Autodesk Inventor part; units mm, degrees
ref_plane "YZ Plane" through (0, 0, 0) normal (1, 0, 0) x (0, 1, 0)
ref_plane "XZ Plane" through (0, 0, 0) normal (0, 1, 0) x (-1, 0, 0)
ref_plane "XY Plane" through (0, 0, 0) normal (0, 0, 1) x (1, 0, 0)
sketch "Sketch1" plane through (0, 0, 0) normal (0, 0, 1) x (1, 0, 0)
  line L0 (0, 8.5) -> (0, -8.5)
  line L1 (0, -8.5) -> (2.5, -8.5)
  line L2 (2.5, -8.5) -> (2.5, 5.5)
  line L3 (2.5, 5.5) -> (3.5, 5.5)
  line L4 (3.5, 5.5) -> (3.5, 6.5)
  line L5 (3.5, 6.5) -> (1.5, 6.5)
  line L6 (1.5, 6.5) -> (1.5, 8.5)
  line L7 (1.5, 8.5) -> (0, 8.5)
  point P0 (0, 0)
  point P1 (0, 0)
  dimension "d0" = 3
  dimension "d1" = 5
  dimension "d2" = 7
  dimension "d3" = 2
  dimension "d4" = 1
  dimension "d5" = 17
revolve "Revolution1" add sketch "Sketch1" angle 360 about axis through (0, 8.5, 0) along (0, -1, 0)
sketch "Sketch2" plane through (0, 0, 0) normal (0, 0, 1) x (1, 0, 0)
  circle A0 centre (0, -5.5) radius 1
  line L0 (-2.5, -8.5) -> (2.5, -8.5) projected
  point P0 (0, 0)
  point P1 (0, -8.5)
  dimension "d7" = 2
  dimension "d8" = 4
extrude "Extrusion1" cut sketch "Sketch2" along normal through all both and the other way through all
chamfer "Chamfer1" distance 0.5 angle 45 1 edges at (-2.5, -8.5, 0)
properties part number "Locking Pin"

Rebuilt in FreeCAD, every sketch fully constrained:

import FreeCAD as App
import Part
import Sketcher


def edges_at(feature, points):
    """Names of the edges that pass closest to the given points."""
    edges = feature.Shape.Edges
    near = lambda p: min(range(len(edges)), key=lambda i: edges[i].distToShape(Part.Vertex(*p))[0])
    return sorted({f"Edge{near(p) + 1}" for p in points})


def add_polygon(sketch, points):
    """Adds a closed chain of lines whose ends are joined by coincident constraints."""
    first, n = sketch.GeometryCount, len(points)
    for a, b in zip(points, points[1:] + points[:1]):
        sketch.addGeometry(Part.LineSegment(App.Vector(*a, 0), App.Vector(*b, 0)), False)
    for i in range(n):
        sketch.addConstraint(Sketcher.Constraint("Coincident", first + i, 2, first + (i + 1) % n, 1))

doc = App.newDocument("Part")
body = doc.addObject("PartDesign::Body", "Body")

sketch1 = body.newObject("Sketcher::SketchObject", "Sketch")
sketch1.AttachmentSupport = (doc.getObject("XY_Plane"), [""])
sketch1.MapMode = "FlatFace"
add_polygon(sketch1, [(1.5, 8.5), (0, 8.5), (0, -8.5), (2.5, -8.5), (2.5, 5.5), (3.5, 5.5), (3.5, 6.5), (1.5, 6.5)])
sketch1.addConstraint(Sketcher.Constraint("Horizontal", 0))
sketch1.addConstraint(Sketcher.Constraint("Vertical", 1))
sketch1.addConstraint(Sketcher.Constraint("Horizontal", 2))
sketch1.addConstraint(Sketcher.Constraint("Vertical", 3))
sketch1.addConstraint(Sketcher.Constraint("Horizontal", 4))
sketch1.addConstraint(Sketcher.Constraint("Vertical", 5))
sketch1.addConstraint(Sketcher.Constraint("Horizontal", 6))
sketch1.addConstraint(Sketcher.Constraint("Vertical", 7))
sketch1.addConstraint(Sketcher.Constraint("Symmetric", 0, 2, 1, 2, -1, 1))
sketch1.addConstraint(Sketcher.Constraint("Equal", 4, 5))
sketch1.addConstraint(Sketcher.Constraint("Equal", 6, 7))
sketch1.addConstraint(Sketcher.Constraint("DistanceX", 4, 1, 4, 2, 1.0))
sketch1.addConstraint(Sketcher.Constraint("DistanceX", 6, 2, 6, 1, 2.0))
sketch1.addConstraint(Sketcher.Constraint("DistanceY", 1, 2, 1, 1, 17.0))
sketch1.addConstraint(Sketcher.Constraint("DistanceX", 0, 2, 0, 1, 1.5))
revolution = body.newObject("PartDesign::Revolution", "Revolution")
revolution.Profile = sketch1
revolution.ReferenceAxis = (sketch1, ["V_Axis"])
revolution.Angle = 360

sketch2 = body.newObject("Sketcher::SketchObject", "Sketch001")
sketch2.AttachmentSupport = (doc.getObject("XY_Plane"), [""])
sketch2.MapMode = "FlatFace"
sketch2.addGeometry(Part.Circle(App.Vector(0, -5.5, 0), App.Vector(0, 0, 1), 1), False)
sketch2.addConstraint(Sketcher.Constraint("PointOnObject", 0, 3, -2))
sketch2.addConstraint(Sketcher.Constraint("Diameter", 0, 2.0))
sketch2.addConstraint(Sketcher.Constraint("DistanceY", 0, 3, -1, 1, 5.5))
pocket1 = body.newObject("PartDesign::Pocket", "Pocket")
pocket1.Profile = sketch2
pocket1.Type = "ThroughAll"
pocket1.Midplane = True
doc.recompute()

chamfer = body.newObject("PartDesign::Chamfer", "Chamfer")
chamfer.Base = (pocket1, edges_at(pocket1, [(-2.5, -8.5, 0)]))
chamfer.Size = 0.5

doc.recompute()
